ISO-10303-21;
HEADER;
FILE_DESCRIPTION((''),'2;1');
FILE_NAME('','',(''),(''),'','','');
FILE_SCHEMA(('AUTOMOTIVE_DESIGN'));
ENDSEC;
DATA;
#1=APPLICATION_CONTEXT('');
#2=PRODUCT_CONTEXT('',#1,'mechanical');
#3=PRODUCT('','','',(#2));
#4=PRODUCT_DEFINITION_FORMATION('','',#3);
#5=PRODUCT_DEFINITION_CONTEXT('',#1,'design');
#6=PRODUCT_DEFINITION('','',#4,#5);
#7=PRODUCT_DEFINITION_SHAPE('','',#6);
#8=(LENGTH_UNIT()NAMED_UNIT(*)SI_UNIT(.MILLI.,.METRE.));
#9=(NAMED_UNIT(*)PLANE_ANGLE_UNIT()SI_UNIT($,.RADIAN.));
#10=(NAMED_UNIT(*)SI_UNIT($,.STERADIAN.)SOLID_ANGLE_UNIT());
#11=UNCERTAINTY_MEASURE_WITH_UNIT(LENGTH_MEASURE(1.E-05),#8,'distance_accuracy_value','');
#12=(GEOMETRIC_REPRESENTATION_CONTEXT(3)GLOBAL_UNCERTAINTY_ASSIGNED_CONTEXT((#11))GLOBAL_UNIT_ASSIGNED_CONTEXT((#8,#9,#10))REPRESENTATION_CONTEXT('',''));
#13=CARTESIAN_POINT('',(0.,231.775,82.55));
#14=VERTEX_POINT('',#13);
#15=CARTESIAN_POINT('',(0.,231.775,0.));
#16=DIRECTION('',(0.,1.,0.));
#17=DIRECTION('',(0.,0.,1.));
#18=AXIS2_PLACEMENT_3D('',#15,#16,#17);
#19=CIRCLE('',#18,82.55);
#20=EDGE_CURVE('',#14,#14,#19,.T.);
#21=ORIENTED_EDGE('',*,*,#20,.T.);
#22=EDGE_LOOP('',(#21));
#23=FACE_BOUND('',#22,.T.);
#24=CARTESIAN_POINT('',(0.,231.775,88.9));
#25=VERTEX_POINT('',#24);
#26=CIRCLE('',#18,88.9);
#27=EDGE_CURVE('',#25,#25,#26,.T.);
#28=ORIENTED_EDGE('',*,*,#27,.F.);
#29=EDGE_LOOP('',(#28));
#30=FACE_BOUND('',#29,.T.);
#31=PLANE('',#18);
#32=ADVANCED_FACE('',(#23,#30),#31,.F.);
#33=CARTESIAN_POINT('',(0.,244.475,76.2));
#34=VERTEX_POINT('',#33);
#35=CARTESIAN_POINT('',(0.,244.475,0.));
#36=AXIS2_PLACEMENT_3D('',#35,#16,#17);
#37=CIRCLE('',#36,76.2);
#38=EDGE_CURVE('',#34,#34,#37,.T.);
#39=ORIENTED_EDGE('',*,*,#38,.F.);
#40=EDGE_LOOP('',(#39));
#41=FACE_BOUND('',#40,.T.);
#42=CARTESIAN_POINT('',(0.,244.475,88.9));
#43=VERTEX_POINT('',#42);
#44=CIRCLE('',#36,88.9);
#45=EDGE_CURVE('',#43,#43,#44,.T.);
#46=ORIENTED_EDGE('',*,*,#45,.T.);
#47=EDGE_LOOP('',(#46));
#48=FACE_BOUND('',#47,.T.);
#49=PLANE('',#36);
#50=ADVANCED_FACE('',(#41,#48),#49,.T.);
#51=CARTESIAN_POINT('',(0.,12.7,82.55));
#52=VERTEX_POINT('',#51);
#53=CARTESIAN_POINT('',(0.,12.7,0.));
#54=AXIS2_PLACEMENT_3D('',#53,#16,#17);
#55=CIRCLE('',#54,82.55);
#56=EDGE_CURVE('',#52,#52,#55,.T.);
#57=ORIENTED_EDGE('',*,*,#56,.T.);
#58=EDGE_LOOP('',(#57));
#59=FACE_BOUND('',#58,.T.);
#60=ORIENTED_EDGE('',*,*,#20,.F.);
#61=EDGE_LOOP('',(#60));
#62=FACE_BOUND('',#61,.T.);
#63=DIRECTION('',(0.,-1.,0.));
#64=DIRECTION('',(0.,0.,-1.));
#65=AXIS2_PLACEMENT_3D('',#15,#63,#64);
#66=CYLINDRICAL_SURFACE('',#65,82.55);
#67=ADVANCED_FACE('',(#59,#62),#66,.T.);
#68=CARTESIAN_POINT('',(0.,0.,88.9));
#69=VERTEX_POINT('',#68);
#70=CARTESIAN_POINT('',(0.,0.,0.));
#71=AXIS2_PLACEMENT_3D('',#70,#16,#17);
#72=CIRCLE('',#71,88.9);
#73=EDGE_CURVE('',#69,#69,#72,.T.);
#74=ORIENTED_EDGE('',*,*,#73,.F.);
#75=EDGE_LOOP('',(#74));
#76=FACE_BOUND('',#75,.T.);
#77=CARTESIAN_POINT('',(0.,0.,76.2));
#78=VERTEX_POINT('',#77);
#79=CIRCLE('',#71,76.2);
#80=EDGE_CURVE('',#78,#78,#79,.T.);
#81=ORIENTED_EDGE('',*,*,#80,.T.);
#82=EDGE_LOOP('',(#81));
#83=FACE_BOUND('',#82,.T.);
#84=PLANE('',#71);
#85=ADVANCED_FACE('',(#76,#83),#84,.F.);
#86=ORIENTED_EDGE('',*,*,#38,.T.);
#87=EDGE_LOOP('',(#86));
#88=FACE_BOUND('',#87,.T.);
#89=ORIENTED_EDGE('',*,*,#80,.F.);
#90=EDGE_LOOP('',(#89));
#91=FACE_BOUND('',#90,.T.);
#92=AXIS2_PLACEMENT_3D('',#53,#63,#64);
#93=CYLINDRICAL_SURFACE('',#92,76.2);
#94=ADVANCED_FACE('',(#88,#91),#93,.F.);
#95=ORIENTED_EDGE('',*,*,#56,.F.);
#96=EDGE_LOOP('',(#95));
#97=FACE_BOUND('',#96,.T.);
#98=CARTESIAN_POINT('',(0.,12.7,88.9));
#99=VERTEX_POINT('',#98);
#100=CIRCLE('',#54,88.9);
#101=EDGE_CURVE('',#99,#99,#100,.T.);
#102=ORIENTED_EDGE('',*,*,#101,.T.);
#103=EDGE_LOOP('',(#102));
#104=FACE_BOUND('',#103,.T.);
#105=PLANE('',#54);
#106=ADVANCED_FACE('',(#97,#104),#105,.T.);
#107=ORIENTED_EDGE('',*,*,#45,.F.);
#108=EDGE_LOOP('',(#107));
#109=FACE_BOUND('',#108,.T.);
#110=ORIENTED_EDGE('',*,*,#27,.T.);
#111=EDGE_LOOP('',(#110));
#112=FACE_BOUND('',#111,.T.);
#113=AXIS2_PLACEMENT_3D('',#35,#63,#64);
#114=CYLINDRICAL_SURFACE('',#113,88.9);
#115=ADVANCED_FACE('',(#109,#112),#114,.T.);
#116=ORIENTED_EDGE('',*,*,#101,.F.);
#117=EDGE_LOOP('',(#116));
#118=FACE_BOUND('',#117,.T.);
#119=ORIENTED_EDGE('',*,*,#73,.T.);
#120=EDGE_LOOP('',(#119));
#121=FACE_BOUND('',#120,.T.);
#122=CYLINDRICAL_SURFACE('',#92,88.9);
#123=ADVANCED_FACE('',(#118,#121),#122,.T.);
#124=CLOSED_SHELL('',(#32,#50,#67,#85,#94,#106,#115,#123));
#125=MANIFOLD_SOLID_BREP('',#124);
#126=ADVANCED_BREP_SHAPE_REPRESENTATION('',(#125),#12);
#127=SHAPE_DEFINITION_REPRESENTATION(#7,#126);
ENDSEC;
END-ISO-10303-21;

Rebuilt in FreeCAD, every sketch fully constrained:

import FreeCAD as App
import Part
import Sketcher
from FreeCAD import Vector
Q = App.Units.Quantity

doc = App.newDocument("Part")
body = doc.addObject("PartDesign::Body", "Body")

sketch1 = body.newObject("Sketcher::SketchObject", "Sketch")
sketch1.AttachmentSupport = (doc.getObject("XZ_Plane"), [""])
sketch1.MapMode = "FlatFace"
sketch1.addGeometry(Part.Circle(Vector(0, 0, 0), Vector(0, 0, 1), 88.9), False)
sketch1.addGeometry(Part.Circle(Vector(0, 0, 0), Vector(0, 0, 1), 76.2), False)
sketch1.addConstraint(Sketcher.Constraint("Coincident", 0, 3, -1, 1))
sketch1.addConstraint(Sketcher.Constraint("Coincident", 1, 3, -1, 1))
sketch1.addConstraint(Sketcher.Constraint("Diameter", 0, Q("7 in")))
sketch1.addConstraint(Sketcher.Constraint("Diameter", 1, Q("6 in")))
pad1 = body.newObject("PartDesign::Pad", "Pad")
pad1.Profile = sketch1
pad1.Length = Q("0.5 in")
pad1.Reversed = True

sketch2 = body.newObject("Sketcher::SketchObject", "Sketch001")
sketch2.AttachmentSupport = (doc.getObject("XZ_Plane"), [""])
sketch2.MapMode = "FlatFace"
sketch2.AttachmentOffset = App.Placement(Vector(0, 0, -0.5 * 25.4), App.Rotation())
sketch2.addGeometry(Part.Circle(Vector(0, 0, 0), Vector(0, 0, 1), 82.55), False)
sketch2.addGeometry(Part.Circle(Vector(0, 0, 0), Vector(0, 0, 1), 76.2), False)
sketch2.addConstraint(Sketcher.Constraint("Coincident", 0, 3, -1, 1))
sketch2.addConstraint(Sketcher.Constraint("Coincident", 1, 3, -1, 1))
sketch2.addConstraint(Sketcher.Constraint("Diameter", 1, Q("6 in")))
sketch2.addConstraint(Sketcher.Constraint("Diameter", 0, Q("6.5 in")))
pad2 = body.newObject("PartDesign::Pad", "Pad001")
pad2.Profile = sketch2
pad2.Length = Q("8.625 in")
pad2.Reversed = True

sketch3 = body.newObject("Sketcher::SketchObject", "Sketch002")
sketch3.AttachmentSupport = (doc.getObject("XZ_Plane"), [""])
sketch3.MapMode = "FlatFace"
sketch3.AttachmentOffset = App.Placement(Vector(0, 0, -9.125 * 25.4), App.Rotation())
sketch3.addGeometry(Part.Circle(Vector(0, 0, 0), Vector(0, 0, 1), 88.9), False)
sketch3.addGeometry(Part.Circle(Vector(0, 0, 0), Vector(0, 0, 1), 76.2), False)
sketch3.addConstraint(Sketcher.Constraint("Coincident", 0, 3, -1, 1))
sketch3.addConstraint(Sketcher.Constraint("Coincident", 1, 3, -1, 1))
sketch3.addConstraint(Sketcher.Constraint("Diameter", 0, Q("7 in")))
sketch3.addConstraint(Sketcher.Constraint("Diameter", 1, Q("6 in")))
pad3 = body.newObject("PartDesign::Pad", "Pad002")
pad3.Profile = sketch3
pad3.Length = Q("0.5 in")
pad3.Reversed = True

doc.recompute()
